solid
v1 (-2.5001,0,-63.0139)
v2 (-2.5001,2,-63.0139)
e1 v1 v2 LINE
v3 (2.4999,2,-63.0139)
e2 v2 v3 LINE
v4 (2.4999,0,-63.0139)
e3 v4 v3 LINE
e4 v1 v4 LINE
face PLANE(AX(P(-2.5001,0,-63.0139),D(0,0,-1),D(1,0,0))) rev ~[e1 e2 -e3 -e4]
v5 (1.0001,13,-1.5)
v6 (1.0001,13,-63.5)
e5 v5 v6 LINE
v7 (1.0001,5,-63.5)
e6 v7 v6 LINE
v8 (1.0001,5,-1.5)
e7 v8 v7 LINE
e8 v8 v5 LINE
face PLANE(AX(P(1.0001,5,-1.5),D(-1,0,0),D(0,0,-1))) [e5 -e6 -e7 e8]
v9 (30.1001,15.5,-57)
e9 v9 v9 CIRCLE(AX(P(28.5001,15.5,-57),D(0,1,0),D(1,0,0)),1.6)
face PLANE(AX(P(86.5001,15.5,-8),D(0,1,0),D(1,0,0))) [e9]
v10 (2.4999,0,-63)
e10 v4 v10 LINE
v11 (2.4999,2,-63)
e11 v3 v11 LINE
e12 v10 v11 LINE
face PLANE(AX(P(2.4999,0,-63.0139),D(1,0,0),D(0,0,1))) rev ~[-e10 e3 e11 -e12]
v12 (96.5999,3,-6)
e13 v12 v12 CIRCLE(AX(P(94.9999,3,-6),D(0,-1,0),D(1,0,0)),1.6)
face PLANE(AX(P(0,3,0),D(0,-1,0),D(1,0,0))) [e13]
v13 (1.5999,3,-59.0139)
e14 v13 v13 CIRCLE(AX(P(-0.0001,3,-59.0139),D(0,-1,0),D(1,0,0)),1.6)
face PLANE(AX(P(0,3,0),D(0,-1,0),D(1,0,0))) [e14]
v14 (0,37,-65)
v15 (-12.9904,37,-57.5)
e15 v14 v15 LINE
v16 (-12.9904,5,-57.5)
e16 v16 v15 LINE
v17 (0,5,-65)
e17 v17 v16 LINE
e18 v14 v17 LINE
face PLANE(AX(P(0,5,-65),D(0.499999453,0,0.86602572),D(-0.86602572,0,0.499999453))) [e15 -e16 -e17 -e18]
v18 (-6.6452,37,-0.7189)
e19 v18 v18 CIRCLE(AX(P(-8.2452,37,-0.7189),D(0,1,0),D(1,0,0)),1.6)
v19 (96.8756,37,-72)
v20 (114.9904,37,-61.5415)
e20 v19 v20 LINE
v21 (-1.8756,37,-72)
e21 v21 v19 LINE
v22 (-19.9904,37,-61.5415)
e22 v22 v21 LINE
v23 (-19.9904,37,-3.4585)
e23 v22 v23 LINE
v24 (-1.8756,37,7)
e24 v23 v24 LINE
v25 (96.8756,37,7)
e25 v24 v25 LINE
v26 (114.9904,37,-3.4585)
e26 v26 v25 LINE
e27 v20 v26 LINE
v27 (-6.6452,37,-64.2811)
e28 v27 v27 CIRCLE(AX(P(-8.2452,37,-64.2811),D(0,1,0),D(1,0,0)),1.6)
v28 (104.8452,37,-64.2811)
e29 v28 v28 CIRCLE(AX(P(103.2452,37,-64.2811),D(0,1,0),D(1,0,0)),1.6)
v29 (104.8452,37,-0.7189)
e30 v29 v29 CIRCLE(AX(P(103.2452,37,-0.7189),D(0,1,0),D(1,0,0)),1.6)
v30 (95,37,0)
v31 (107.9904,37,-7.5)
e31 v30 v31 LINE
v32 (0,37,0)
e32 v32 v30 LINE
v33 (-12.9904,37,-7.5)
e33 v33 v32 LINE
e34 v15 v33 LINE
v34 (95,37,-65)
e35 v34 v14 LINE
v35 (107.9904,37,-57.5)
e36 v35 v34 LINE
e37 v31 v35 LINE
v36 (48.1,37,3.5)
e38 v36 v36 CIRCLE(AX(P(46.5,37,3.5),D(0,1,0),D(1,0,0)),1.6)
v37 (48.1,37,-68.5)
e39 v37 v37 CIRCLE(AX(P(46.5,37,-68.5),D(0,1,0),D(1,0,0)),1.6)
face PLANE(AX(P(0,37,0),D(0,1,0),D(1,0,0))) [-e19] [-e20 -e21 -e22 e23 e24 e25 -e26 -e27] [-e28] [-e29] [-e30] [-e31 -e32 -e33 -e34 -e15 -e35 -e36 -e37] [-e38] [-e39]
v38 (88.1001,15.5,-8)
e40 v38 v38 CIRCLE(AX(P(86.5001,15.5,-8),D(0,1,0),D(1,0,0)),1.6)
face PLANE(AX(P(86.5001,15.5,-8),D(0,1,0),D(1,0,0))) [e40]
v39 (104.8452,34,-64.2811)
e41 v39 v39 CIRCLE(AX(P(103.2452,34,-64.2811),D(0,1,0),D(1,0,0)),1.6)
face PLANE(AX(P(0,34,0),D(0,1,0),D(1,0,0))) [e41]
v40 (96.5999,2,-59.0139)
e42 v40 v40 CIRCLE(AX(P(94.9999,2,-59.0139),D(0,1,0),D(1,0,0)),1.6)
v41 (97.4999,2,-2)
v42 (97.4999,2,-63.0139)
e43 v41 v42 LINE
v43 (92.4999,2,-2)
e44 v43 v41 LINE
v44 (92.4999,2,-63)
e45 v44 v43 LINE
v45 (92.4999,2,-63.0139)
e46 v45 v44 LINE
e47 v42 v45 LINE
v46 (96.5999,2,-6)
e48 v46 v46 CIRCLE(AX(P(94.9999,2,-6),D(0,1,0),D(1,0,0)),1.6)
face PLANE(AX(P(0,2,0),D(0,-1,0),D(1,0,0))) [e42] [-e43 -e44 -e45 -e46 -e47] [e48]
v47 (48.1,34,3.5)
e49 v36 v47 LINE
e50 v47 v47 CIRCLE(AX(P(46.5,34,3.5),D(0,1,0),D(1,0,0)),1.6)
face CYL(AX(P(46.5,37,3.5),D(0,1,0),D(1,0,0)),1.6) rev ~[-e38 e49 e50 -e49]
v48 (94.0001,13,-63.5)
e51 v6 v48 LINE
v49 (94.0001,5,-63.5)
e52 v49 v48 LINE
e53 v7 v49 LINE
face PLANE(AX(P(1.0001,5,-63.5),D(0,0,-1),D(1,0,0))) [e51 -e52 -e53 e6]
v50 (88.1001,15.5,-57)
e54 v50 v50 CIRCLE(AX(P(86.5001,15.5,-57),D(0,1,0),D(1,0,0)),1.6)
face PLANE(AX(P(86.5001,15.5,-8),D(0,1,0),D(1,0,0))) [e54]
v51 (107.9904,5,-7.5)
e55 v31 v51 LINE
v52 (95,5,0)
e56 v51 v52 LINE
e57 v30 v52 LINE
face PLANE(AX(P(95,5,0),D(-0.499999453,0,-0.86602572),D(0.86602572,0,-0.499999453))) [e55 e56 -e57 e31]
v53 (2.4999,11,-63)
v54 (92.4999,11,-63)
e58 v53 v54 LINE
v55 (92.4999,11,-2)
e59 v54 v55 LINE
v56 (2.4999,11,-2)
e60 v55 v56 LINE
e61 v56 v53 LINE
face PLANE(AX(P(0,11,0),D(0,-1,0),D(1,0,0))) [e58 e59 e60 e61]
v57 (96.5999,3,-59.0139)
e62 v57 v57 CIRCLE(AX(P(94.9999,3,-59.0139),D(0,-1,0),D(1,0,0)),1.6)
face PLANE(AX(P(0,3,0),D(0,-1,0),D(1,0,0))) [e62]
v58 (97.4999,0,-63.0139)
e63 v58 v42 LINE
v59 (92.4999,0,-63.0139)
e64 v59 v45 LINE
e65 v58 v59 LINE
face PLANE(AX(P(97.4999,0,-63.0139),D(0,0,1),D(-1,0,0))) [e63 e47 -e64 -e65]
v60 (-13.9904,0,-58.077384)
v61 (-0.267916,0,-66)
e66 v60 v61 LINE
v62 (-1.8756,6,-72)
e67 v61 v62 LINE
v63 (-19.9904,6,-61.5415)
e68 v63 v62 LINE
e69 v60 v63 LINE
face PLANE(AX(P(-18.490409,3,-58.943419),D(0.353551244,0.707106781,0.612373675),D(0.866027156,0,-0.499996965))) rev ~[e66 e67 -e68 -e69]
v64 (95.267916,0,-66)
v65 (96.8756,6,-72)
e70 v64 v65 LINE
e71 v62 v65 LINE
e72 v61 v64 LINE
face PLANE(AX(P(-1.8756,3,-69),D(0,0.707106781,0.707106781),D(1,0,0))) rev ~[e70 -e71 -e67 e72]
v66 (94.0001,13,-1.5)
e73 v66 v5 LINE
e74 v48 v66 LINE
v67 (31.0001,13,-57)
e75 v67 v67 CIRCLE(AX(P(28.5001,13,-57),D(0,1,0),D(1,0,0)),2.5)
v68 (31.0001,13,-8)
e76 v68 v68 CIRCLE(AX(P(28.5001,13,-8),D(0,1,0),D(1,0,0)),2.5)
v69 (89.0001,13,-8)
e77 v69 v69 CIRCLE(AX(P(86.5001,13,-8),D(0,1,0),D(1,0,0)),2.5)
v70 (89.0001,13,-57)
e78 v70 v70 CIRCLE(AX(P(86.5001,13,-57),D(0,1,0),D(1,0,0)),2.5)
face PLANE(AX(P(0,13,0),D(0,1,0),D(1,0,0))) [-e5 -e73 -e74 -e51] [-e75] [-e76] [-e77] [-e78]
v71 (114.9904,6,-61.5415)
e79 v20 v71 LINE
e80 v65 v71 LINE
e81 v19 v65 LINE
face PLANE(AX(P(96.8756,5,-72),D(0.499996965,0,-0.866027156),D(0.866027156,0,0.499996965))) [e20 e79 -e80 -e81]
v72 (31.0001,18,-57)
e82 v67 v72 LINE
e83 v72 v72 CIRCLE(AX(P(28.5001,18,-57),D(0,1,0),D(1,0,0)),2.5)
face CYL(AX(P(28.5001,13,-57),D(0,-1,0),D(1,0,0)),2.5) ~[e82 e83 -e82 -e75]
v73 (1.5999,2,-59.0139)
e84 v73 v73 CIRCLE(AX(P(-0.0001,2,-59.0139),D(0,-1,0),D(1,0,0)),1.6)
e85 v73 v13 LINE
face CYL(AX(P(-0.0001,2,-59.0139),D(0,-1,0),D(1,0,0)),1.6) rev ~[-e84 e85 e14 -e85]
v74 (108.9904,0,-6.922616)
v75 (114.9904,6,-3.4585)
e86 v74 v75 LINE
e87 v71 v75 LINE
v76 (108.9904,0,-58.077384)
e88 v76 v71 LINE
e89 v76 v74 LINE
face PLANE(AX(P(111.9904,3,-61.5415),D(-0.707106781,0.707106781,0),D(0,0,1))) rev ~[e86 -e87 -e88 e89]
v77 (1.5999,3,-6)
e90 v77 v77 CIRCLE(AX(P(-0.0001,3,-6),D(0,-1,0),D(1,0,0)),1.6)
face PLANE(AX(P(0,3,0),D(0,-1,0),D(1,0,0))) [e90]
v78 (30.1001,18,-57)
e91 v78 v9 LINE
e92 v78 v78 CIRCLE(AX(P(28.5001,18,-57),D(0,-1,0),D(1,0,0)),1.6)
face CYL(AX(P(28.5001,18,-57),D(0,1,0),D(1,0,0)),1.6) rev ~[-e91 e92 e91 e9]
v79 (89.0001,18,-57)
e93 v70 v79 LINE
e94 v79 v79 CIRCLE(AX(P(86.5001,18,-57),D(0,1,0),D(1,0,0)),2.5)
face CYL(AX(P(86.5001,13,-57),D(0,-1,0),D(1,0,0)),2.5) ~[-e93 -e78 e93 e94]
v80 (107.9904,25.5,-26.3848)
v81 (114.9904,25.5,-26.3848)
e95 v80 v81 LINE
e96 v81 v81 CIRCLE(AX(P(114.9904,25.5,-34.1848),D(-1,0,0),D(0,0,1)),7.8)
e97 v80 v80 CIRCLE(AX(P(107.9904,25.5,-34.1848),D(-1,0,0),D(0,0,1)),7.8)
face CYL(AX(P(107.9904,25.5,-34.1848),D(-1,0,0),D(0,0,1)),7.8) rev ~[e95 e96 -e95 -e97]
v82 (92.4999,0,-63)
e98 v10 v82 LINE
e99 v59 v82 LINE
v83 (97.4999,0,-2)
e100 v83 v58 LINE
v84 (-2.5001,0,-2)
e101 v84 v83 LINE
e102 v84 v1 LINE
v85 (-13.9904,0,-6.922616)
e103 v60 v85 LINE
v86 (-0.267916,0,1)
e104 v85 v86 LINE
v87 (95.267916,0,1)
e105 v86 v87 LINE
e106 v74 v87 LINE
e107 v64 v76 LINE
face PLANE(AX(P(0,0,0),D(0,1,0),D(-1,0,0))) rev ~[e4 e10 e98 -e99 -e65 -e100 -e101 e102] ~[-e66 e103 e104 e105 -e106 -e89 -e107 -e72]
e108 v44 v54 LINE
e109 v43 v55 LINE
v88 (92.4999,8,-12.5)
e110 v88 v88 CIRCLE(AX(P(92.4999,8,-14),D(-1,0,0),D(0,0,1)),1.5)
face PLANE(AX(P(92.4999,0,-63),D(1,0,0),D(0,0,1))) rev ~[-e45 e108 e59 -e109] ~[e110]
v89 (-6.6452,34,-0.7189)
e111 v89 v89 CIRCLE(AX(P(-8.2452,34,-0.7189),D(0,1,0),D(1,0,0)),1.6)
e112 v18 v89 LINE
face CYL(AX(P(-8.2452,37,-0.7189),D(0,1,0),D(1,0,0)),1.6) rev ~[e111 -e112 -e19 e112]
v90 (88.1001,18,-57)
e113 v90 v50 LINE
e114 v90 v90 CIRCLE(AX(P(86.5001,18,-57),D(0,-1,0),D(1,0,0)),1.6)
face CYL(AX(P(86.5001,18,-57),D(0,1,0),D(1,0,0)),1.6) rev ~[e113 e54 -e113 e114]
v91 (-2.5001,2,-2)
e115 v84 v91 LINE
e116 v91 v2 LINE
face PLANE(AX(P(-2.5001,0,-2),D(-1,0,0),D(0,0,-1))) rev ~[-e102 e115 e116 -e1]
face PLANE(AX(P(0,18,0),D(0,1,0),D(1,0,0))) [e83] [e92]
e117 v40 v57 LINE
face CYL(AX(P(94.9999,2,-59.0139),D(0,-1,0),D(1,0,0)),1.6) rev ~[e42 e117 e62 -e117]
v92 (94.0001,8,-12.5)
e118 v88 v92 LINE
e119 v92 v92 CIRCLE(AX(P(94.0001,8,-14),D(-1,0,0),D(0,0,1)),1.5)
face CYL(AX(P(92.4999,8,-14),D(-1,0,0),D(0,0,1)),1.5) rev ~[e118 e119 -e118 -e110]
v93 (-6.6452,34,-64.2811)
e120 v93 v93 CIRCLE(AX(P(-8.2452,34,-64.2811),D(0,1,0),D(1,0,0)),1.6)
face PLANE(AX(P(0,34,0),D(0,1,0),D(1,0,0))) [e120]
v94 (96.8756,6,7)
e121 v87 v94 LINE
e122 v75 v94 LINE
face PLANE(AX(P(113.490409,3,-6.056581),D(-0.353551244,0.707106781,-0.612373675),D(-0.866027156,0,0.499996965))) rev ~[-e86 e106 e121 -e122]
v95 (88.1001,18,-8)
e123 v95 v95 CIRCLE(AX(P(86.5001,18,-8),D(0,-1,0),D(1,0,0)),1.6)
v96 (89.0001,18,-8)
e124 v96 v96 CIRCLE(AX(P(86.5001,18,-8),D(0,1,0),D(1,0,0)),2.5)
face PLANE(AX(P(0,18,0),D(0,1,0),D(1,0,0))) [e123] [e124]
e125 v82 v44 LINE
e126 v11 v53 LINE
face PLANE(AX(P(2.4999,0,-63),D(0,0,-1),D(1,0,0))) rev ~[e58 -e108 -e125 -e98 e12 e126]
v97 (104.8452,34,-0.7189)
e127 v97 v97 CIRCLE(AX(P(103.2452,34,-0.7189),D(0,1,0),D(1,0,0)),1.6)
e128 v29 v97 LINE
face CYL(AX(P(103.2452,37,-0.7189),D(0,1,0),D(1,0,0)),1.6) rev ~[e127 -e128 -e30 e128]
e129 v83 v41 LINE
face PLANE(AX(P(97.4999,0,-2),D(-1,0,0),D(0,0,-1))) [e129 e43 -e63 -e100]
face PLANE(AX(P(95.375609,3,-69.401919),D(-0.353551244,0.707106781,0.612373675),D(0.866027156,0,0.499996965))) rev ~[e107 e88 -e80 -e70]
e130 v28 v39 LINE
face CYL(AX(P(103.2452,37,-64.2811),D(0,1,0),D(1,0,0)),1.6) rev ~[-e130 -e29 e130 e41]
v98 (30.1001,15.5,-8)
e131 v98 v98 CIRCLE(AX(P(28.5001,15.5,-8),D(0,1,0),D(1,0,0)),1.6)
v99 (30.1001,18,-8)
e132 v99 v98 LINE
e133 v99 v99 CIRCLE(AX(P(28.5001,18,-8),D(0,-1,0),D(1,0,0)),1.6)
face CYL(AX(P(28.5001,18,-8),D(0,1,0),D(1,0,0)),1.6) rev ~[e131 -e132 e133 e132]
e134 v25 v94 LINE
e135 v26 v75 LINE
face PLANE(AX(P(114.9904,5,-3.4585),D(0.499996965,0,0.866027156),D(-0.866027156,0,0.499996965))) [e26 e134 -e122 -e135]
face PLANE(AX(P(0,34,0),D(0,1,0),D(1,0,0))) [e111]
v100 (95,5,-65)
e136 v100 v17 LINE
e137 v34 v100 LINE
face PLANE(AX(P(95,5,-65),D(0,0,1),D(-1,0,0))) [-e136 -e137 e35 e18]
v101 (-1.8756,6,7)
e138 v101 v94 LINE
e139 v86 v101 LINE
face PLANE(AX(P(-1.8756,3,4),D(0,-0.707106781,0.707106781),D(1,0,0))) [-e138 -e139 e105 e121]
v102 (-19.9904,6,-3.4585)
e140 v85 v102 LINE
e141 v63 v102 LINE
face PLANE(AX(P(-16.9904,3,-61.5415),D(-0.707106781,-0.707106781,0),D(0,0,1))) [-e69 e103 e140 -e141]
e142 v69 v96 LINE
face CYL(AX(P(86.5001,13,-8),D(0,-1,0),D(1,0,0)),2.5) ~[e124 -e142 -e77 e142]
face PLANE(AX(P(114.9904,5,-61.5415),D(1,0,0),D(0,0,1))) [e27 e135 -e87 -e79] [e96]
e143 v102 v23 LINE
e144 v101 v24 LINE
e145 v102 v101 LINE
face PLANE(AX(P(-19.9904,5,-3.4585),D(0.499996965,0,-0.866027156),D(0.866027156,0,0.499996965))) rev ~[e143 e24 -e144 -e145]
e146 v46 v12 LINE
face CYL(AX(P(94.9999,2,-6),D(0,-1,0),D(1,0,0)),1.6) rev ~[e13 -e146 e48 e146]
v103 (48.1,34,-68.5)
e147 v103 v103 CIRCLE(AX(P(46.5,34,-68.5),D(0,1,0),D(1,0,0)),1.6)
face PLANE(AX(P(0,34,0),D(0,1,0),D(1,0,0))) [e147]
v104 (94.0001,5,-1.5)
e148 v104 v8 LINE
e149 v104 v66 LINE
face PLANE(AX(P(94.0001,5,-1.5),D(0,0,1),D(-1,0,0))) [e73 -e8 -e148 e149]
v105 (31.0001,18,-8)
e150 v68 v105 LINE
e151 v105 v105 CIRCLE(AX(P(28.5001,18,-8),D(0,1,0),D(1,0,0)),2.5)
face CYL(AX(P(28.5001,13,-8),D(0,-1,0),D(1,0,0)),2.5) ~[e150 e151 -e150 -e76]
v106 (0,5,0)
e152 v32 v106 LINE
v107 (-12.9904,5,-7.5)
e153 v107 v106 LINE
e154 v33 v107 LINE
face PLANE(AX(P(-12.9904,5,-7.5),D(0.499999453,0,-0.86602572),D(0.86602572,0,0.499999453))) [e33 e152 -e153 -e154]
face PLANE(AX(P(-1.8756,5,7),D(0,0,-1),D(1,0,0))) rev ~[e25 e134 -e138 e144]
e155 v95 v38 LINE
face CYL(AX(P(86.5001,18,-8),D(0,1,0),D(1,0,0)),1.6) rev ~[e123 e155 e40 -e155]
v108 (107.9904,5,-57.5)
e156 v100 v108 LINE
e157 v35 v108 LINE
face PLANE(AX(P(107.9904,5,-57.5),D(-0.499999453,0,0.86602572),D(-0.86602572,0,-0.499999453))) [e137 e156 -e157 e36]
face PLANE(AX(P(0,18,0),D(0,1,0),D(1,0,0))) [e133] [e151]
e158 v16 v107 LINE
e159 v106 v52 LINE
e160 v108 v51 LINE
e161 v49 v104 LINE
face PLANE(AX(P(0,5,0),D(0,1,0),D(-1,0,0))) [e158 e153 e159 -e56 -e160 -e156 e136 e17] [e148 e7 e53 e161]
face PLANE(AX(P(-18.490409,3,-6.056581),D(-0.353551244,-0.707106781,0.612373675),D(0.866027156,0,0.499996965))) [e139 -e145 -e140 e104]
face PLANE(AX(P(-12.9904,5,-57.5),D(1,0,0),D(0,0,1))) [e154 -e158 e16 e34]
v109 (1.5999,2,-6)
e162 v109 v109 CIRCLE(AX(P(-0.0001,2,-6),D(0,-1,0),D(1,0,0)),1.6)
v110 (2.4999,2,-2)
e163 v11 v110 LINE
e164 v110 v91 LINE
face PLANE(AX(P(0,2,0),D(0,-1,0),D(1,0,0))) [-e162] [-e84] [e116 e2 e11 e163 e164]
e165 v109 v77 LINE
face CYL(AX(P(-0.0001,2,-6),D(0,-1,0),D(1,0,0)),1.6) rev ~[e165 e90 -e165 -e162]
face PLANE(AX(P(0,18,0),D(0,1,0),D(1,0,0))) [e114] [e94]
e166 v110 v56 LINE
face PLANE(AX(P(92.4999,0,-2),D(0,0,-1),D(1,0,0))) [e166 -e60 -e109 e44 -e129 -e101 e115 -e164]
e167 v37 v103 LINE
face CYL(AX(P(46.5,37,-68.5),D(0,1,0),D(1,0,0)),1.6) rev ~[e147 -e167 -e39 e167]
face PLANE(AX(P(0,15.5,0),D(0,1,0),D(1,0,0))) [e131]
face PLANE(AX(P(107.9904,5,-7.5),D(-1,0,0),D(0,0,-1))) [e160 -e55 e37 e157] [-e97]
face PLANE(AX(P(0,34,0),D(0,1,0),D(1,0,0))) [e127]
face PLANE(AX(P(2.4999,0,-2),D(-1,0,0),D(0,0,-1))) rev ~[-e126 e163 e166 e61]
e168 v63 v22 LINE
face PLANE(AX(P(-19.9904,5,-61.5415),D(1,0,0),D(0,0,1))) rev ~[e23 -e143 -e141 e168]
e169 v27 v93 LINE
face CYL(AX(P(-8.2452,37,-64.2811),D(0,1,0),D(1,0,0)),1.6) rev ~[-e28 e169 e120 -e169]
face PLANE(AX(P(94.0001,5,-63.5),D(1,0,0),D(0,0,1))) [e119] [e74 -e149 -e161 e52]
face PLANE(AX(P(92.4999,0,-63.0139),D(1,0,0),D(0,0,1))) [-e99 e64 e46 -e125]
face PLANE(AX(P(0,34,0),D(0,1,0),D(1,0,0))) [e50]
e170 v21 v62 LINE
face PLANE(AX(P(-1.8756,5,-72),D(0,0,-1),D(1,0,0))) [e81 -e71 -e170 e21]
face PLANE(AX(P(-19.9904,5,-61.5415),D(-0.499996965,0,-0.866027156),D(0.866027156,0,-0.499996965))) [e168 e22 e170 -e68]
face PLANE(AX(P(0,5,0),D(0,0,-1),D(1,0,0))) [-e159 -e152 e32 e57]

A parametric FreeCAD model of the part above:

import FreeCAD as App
import Part
import Sketcher

V = App.Vector
Q = App.Units.Quantity


def edges_at(feature, points):
    """Names of the edges that pass closest to the given points."""
    edges = feature.Shape.Edges
    near = lambda p: min(range(len(edges)), key=lambda i: edges[i].distToShape(Part.Vertex(*p))[0])
    return sorted({f"Edge{near(p) + 1}" for p in points})

doc = App.newDocument("Part")
body = doc.addObject("PartDesign::Body", "Body")

# Sketch on XZ plane
sketch1 = body.newObject("Sketcher::SketchObject", "Sketch")
sketch1.AttachmentSupport = (doc.getObject("XZ_Plane"), [""])
sketch1.MapMode = "FlatFace"
sketch1.addGeometry(Part.LineSegment(V(95, -65, 0), V(0, -65, 0)), False)
sketch1.addGeometry(Part.LineSegment(V(0, -65, 0), V(-13, -58, 0)), False)
sketch1.addGeometry(Part.LineSegment(V(-13, -58, 0), V(-13, -8, 0)), False)
sketch1.addGeometry(Part.LineSegment(V(-13, -8, 0), V(0, 0, 0)), False)
sketch1.addGeometry(Part.LineSegment(V(0, 0, 0), V(95, 0, 0)), False)
sketch1.addGeometry(Part.LineSegment(V(95, 0, 0), V(108, -8, 0)), False)
sketch1.addGeometry(Part.LineSegment(V(108, -8, 0), V(108, -58, 0)), False)
sketch1.addGeometry(Part.LineSegment(V(108, -58, 0), V(95, -65, 0)), False)
sketch1.addConstraint(Sketcher.Constraint("Coincident", 0, 2, 1, 1))
sketch1.addConstraint(Sketcher.Constraint("Coincident", 1, 2, 2, 1))
sketch1.addConstraint(Sketcher.Constraint("Coincident", 2, 2, 3, 1))
sketch1.addConstraint(Sketcher.Constraint("Coincident", 3, 2, 4, 1))
sketch1.addConstraint(Sketcher.Constraint("Coincident", 4, 2, 5, 1))
sketch1.addConstraint(Sketcher.Constraint("Coincident", 5, 2, 6, 1))
sketch1.addConstraint(Sketcher.Constraint("Coincident", 6, 2, 7, 1))
sketch1.addConstraint(Sketcher.Constraint("Coincident", 7, 2, 0, 1))
sketch1.addConstraint(Sketcher.Constraint("Horizontal", 0))
sketch1.addConstraint(Sketcher.Constraint("Vertical", 2))
sketch1.addConstraint(Sketcher.Constraint("Horizontal", 4))
sketch1.addConstraint(Sketcher.Constraint("Vertical", 6))
sketch1.addConstraint(Sketcher.Constraint("Coincident", 3, 2, -1, 1))
sketch1.addConstraint(Sketcher.Constraint("PointOnObject", 0, 2, -2))
sketch1.addConstraint(Sketcher.Constraint("Parallel", 1, 5))
sketch1.addConstraint(Sketcher.Constraint("Parallel", 3, 7))
sketch1.addConstraint(Sketcher.Constraint("Horizontal", 2, 2, 5, 2))
sketch1.addConstraint(Sketcher.Constraint("Horizontal", 1, 2, 6, 2))
sketch1.addConstraint(Sketcher.Constraint("Vertical", 4, 2, 7, 2))
sketch1.addConstraint(Sketcher.Constraint("DistanceX", 0, 2, 0, 1, Q("95 mm")))
sketch1.addConstraint(Sketcher.Constraint("Distance", 1, Q("15 mm")))
sketch1.addConstraint(Sketcher.Constraint("DistanceY", 0, 2, -1, 1, Q("65 mm")))
sketch1.addConstraint(Sketcher.Constraint("DistanceY", 2, 1, 2, 2, Q("50 mm")))
pad1 = body.newObject("PartDesign::Pad", "Pad")
pad1.Profile = sketch1
pad1.Length = 5
pad1.Reversed = True

# Sketch on XZ plane
sketch2 = body.newObject("Sketcher::SketchObject", "Sketch001")
sketch2.AttachmentSupport = (doc.getObject("XZ_Plane"), [""])
sketch2.MapMode = "FlatFace"
sketch2.AttachmentOffset = App.Placement(V(0, 0, -5), App.Rotation())
sketch2.addGeometry(Part.LineSegment(V(94, -64, 0), V(1, -64, 0)), False)
sketch2.addGeometry(Part.LineSegment(V(1, -64, 0), V(1, -2, 0)), False)
sketch2.addGeometry(Part.LineSegment(V(1, -2, 0), V(94, -2, 0)), False)
sketch2.addGeometry(Part.LineSegment(V(94, -2, 0), V(94, -64, 0)), False)
sketch2.addConstraint(Sketcher.Constraint("Coincident", 0, 2, 1, 1))
sketch2.addConstraint(Sketcher.Constraint("Coincident", 1, 2, 2, 1))
sketch2.addConstraint(Sketcher.Constraint("Coincident", 2, 2, 3, 1))
sketch2.addConstraint(Sketcher.Constraint("Coincident", 3, 2, 0, 1))
sketch2.addConstraint(Sketcher.Constraint("Horizontal", 0))
sketch2.addConstraint(Sketcher.Constraint("Vertical", 1))
sketch2.addConstraint(Sketcher.Constraint("Horizontal", 2))
sketch2.addConstraint(Sketcher.Constraint("Vertical", 3))
sketch2.addConstraint(Sketcher.Constraint("DistanceX", 0, 2, 0, 1, Q("93 mm")))
sketch2.addConstraint(Sketcher.Constraint("DistanceY", 1, 1, 1, 2, Q("62 mm")))
sketch2.addConstraint(Sketcher.Constraint("DistanceY", 1, 2, -1, 1, Q("1.5 mm")))
sketch2.addConstraint(Sketcher.Constraint("DistanceX", -1, 1, 0, 2, Q("1 mm")))
pad2 = body.newObject("PartDesign::Pad", "Pad001")
pad2.Profile = sketch2
pad2.Length = 8
pad2.Reversed = True

# Sketch on XZ plane
sketch3 = body.newObject("Sketcher::SketchObject", "Sketch002")
sketch3.AttachmentSupport = (doc.getObject("XZ_Plane"), [""])
sketch3.MapMode = "FlatFace"
sketch3.AttachmentOffset = App.Placement(V(0, 0, -5), App.Rotation())
sketch3.addGeometry(Part.LineSegment(V(-2, -72, 0), V(-20, -62, 0)), False)
sketch3.addGeometry(Part.LineSegment(V(-20, -62, 0), V(-20, -3, 0)), False)
sketch3.addGeometry(Part.LineSegment(V(-20, -3, 0), V(-2, 7, 0)), False)
sketch3.addGeometry(Part.LineSegment(V(-2, 7, 0), V(97, 7, 0)), False)
sketch3.addGeometry(Part.LineSegment(V(97, 7, 0), V(115, -3, 0)), False)
sketch3.addGeometry(Part.LineSegment(V(115, -3, 0), V(115, -62, 0)), False)
sketch3.addGeometry(Part.LineSegment(V(115, -62, 0), V(97, -72, 0)), False)
sketch3.addGeometry(Part.LineSegment(V(97, -72, 0), V(-2, -72, 0)), False)
sketch3.addGeometry(Part.LineSegment(V(-13, -8, 0), V(-13, -58, 0)), False)
sketch3.addGeometry(Part.LineSegment(V(-13, -58, 0), V(0, -65, 0)), False)
sketch3.addGeometry(Part.LineSegment(V(0, -65, 0), V(95, -65, 0)), False)
sketch3.addGeometry(Part.LineSegment(V(95, -65, 0), V(108, -58, 0)), False)
sketch3.addGeometry(Part.LineSegment(V(108, -58, 0), V(108, -8, 0)), False)
sketch3.addGeometry(Part.LineSegment(V(108, -8, 0), V(95, 0, 0)), False)
sketch3.addGeometry(Part.LineSegment(V(95, 0, 0), V(0, 0, 0)), False)
sketch3.addGeometry(Part.LineSegment(V(0, 0, 0), V(-13, -8, 0)), False)
sketch3.addConstraint(Sketcher.Constraint("Coincident", 0, 2, 1, 1))
sketch3.addConstraint(Sketcher.Constraint("Coincident", 1, 2, 2, 1))
sketch3.addConstraint(Sketcher.Constraint("Coincident", 2, 2, 3, 1))
sketch3.addConstraint(Sketcher.Constraint("Coincident", 3, 2, 4, 1))
sketch3.addConstraint(Sketcher.Constraint("Coincident", 4, 2, 5, 1))
sketch3.addConstraint(Sketcher.Constraint("Coincident", 5, 2, 6, 1))
sketch3.addConstraint(Sketcher.Constraint("Coincident", 6, 2, 7, 1))
sketch3.addConstraint(Sketcher.Constraint("Coincident", 7, 2, 0, 1))
sketch3.addConstraint(Sketcher.Constraint("Coincident", 8, 2, 9, 1))
sketch3.addConstraint(Sketcher.Constraint("Coincident", 9, 2, 10, 1))
sketch3.addConstraint(Sketcher.Constraint("Coincident", 10, 2, 11, 1))
sketch3.addConstraint(Sketcher.Constraint("Coincident", 11, 2, 12, 1))
sketch3.addConstraint(Sketcher.Constraint("Coincident", 12, 2, 13, 1))
sketch3.addConstraint(Sketcher.Constraint("Coincident", 13, 2, 14, 1))
sketch3.addConstraint(Sketcher.Constraint("Coincident", 14, 2, 15, 1))
sketch3.addConstraint(Sketcher.Constraint("Coincident", 15, 2, 8, 1))
sketch3.addConstraint(Sketcher.Constraint("Vertical", 1))
sketch3.addConstraint(Sketcher.Constraint("Horizontal", 3))
sketch3.addConstraint(Sketcher.Constraint("Vertical", 5))
sketch3.addConstraint(Sketcher.Constraint("Horizontal", 7))
sketch3.addConstraint(Sketcher.Constraint("Vertical", 8))
sketch3.addConstraint(Sketcher.Constraint("Horizontal", 10))
sketch3.addConstraint(Sketcher.Constraint("Vertical", 12))
sketch3.addConstraint(Sketcher.Constraint("Horizontal", 14))
sketch3.addConstraint(Sketcher.Constraint("Coincident", 14, 2, -1, 1))
sketch3.addConstraint(Sketcher.Constraint("PointOnObject", 9, 2, -2))
sketch3.addConstraint(Sketcher.Constraint("Parallel", 0, 4))
sketch3.addConstraint(Sketcher.Constraint("Parallel", 2, 6))
sketch3.addConstraint(Sketcher.Constraint("Parallel", 4, 9))
sketch3.addConstraint(Sketcher.Constraint("Parallel", 6, 11))
sketch3.addConstraint(Sketcher.Constraint("Parallel", 9, 13))
sketch3.addConstraint(Sketcher.Constraint("Parallel", 11, 15))
sketch3.addConstraint(Sketcher.Constraint("Horizontal", 1, 2, 4, 2))
sketch3.addConstraint(Sketcher.Constraint("Horizontal", 0, 2, 5, 2))
sketch3.addConstraint(Sketcher.Constraint("Horizontal", 8, 2, 11, 2))
sketch3.addConstraint(Sketcher.Constraint("Horizontal", 12, 2, 15, 2))
sketch3.addConstraint(Sketcher.Constraint("Vertical", 3, 2, 6, 2))
sketch3.addConstraint(Sketcher.Constraint("Vertical", 2, 2, 7, 2))
sketch3.addConstraint(Sketcher.Constraint("DistanceY", -1, 1, 2, 2, Q("7 mm")))
sketch3.addConstraint(Sketcher.Constraint("DistanceX", 0, 2, 8, 2, Q("7 mm")))
sketch3.addConstraint(Sketcher.Constraint("DistanceY", 7, 2, 9, 2, Q("7 mm")))
sketch3.addConstraint(Sketcher.Constraint("DistanceX", 11, 2, 5, 2, Q("7 mm")))
sketch3.addConstraint(Sketcher.Constraint("DistanceX", 10, 1, 10, 2, Q("95 mm")))
sketch3.addConstraint(Sketcher.Constraint("DistanceY", 8, 2, 8, 1, Q("50 mm")))
sketch3.addConstraint(Sketcher.Constraint("Angle", 0, Q("150.0002 deg")))
sketch3.addConstraint(Sketcher.Constraint("Distance", 9, Q("15 mm")))
sketch3.addConstraint(Sketcher.Constraint("DistanceY", 1, 1, 1, 2, Q("58.083 mm")))
pad3 = body.newObject("PartDesign::Pad", "Pad002")
pad3.Profile = sketch3
pad3.Type = "TwoLengths"
pad3.Length = 32
pad3.Length2 = 5
pad3.Reversed = True

# Sketch on XZ plane
sketch4 = body.newObject("Sketcher::SketchObject", "Sketch003")
sketch4.AttachmentSupport = (doc.getObject("XZ_Plane"), [""])
sketch4.MapMode = "FlatFace"
sketch4.addGeometry(Part.LineSegment(V(2, -2, 0), V(2, -63, 0)), False)
sketch4.addGeometry(Part.LineSegment(V(2, -63, 0), V(92, -63, 0)), False)
sketch4.addGeometry(Part.LineSegment(V(92, -63, 0), V(92, -2, 0)), False)
sketch4.addGeometry(Part.LineSegment(V(92, -2, 0), V(2, -2, 0)), False)
sketch4.addConstraint(Sketcher.Constraint("Coincident", 0, 2, 1, 1))
sketch4.addConstraint(Sketcher.Constraint("Coincident", 1, 2, 2, 1))
sketch4.addConstraint(Sketcher.Constraint("Coincident", 2, 2, 3, 1))
sketch4.addConstraint(Sketcher.Constraint("Coincident", 3, 2, 0, 1))
sketch4.addConstraint(Sketcher.Constraint("Vertical", 0))
sketch4.addConstraint(Sketcher.Constraint("Horizontal", 1))
sketch4.addConstraint(Sketcher.Constraint("Vertical", 2))
sketch4.addConstraint(Sketcher.Constraint("Horizontal", 3))
sketch4.addConstraint(Sketcher.Constraint("DistanceX", 1, 1, 1, 2, Q("90 mm")))
sketch4.addConstraint(Sketcher.Constraint("DistanceY", 0, 2, 0, 1, Q("61 mm")))
sketch4.addConstraint(Sketcher.Constraint("DistanceY", 0, 2, -1, 1, Q("63 mm")))
sketch4.addConstraint(Sketcher.Constraint("DistanceX", -1, 1, 0, 2, Q("2.5 mm")))
pocket1 = body.newObject("PartDesign::Pocket", "Pocket")
pocket1.Profile = sketch4
pocket1.Length = 11
doc.recompute()

chamfer = body.newObject("PartDesign::Chamfer", "Chamfer")
chamfer.Base = (pocket1, edges_at(pocket1, [
    (47.5, 0, -72),
    (105.933, 0, -66.771),
    (114.99, 0, -32.5),
    (105.933, 0, 1.771),
    (47.5, 0, 7),
    (-10.933, 0, 1.771),
    (-19.99, 0, -32.5),
    (-10.933, 0, -66.771),
]))
chamfer.Size = 6

# Sketch on XZ plane
sketch5 = body.newObject("Sketcher::SketchObject", "Sketch004")
sketch5.AttachmentSupport = (doc.getObject("XZ_Plane"), [""])
sketch5.MapMode = "FlatFace"
sketch5.addGeometry(Part.LineSegment(V(2, -63, 0), V(2, -2, 0)), False)
sketch5.addGeometry(Part.LineSegment(V(2, -2, 0), V(-3, -2, 0)), False)
sketch5.addGeometry(Part.LineSegment(V(-3, -2, 0), V(-3, -63, 0)), False)
sketch5.addGeometry(Part.LineSegment(V(-3, -63, 0), V(2, -63, 0)), False)
sketch5.addGeometry(Part.LineSegment(V(97, -2, 0), V(92, -2, 0)), False)
sketch5.addGeometry(Part.LineSegment(V(92, -2, 0), V(92, -63, 0)), False)
sketch5.addGeometry(Part.LineSegment(V(92, -63, 0), V(97, -63, 0)), False)
sketch5.addGeometry(Part.LineSegment(V(97, -63, 0), V(97, -2, 0)), False)
sketch5.addConstraint(Sketcher.Constraint("Coincident", 0, 2, 1, 1))
sketch5.addConstraint(Sketcher.Constraint("Coincident", 1, 2, 2, 1))
sketch5.addConstraint(Sketcher.Constraint("Coincident", 2, 2, 3, 1))
sketch5.addConstraint(Sketcher.Constraint("Coincident", 3, 2, 0, 1))
sketch5.addConstraint(Sketcher.Constraint("Coincident", 4, 2, 5, 1))
sketch5.addConstraint(Sketcher.Constraint("Coincident", 5, 2, 6, 1))
sketch5.addConstraint(Sketcher.Constraint("Coincident", 6, 2, 7, 1))
sketch5.addConstraint(Sketcher.Constraint("Coincident", 7, 2, 4, 1))
sketch5.addConstraint(Sketcher.Constraint("Vertical", 0))
sketch5.addConstraint(Sketcher.Constraint("Horizontal", 1))
sketch5.addConstraint(Sketcher.Constraint("Vertical", 2))
sketch5.addConstraint(Sketcher.Constraint("Horizontal", 3))
sketch5.addConstraint(Sketcher.Constraint("Horizontal", 4))
sketch5.addConstraint(Sketcher.Constraint("Vertical", 5))
sketch5.addConstraint(Sketcher.Constraint("Horizontal", 6))
sketch5.addConstraint(Sketcher.Constraint("Vertical", 7))
sketch5.addConstraint(Sketcher.Constraint("Horizontal", 1, 2, 4, 2))
sketch5.addConstraint(Sketcher.Constraint("Horizontal", 3, 2, 5, 2))
sketch5.addConstraint(Sketcher.Constraint("Equal", 3, 4))
sketch5.addConstraint(Sketcher.Constraint("DistanceX", 1, 2, 1, 1, Q("5 mm")))
sketch5.addConstraint(Sketcher.Constraint("DistanceY", 0, 2, -1, 1, Q("2 mm")))
sketch5.addConstraint(Sketcher.Constraint("DistanceX", 0, 2, 4, 2, Q("90 mm")))
sketch5.addConstraint(Sketcher.Constraint("DistanceX", -1, 1, 0, 2, Q("2.5 mm")))
sketch5.addConstraint(Sketcher.Constraint("DistanceY", 0, 1, 0, 2, Q("61.014 mm")))
pocket2 = body.newObject("PartDesign::Pocket", "Pocket001")
pocket2.Profile = sketch5
pocket2.Length = 2

# Sketch on XZ plane
sketch6 = body.newObject("Sketcher::SketchObject", "Sketch005")
sketch6.AttachmentSupport = (doc.getObject("XZ_Plane"), [""])
sketch6.MapMode = "FlatFace"
sketch6.AttachmentOffset = App.Placement(V(0, 0, -2), App.Rotation())
sketch6.addGeometry(Part.Circle(V(0, -6, 0), V(0, 0, 1), 1.6), False)
sketch6.addGeometry(Part.Circle(V(95, -6, 0), V(0, 0, 1), 1.6), False)
sketch6.addGeometry(Part.Circle(V(95, -59, 0), V(0, 0, 1), 1.6), False)
sketch6.addGeometry(Part.Circle(V(0, -59, 0), V(0, 0, 1), 1.6), False)
sketch6.addConstraint(Sketcher.Constraint("Equal", 0, 1))
sketch6.addConstraint(Sketcher.Constraint("Equal", 1, 2))
sketch6.addConstraint(Sketcher.Constraint("Equal", 2, 3))
sketch6.addConstraint(Sketcher.Constraint("PointOnObject", 0, 3, -2))
sketch6.addConstraint(Sketcher.Constraint("PointOnObject", 3, 3, -2))
sketch6.addConstraint(Sketcher.Constraint("Horizontal", 0, 3, 1, 3))
sketch6.addConstraint(Sketcher.Constraint("Horizontal", 2, 3, 3, 3))
sketch6.addConstraint(Sketcher.Constraint("Vertical", 1, 3, 2, 3))
sketch6.addConstraint(Sketcher.Constraint("Diameter", 0, Q("3.2 mm")))
sketch6.addConstraint(Sketcher.Constraint("DistanceY", 0, 3, -1, 1, Q("6 mm")))
sketch6.addConstraint(Sketcher.Constraint("DistanceX", -1, 1, 1, 3, Q("95 mm")))
sketch6.addConstraint(Sketcher.Constraint("DistanceY", 2, 3, -1, 1, Q("59.014 mm")))
pocket3 = body.newObject("PartDesign::Pocket", "Pocket002")
pocket3.Profile = sketch6
pocket3.Length = 1

# Sketch on XZ plane
sketch7 = body.newObject("Sketcher::SketchObject", "Sketch006")
sketch7.AttachmentSupport = (doc.getObject("XZ_Plane"), [""])
sketch7.MapMode = "FlatFace"
sketch7.AttachmentOffset = App.Placement(V(0, 0, -13), App.Rotation())
sketch7.addGeometry(Part.Circle(V(28.5, -57, 0), V(0, 0, 1), 2.5), False)
sketch7.addGeometry(Part.Circle(V(28.5, -8, 0), V(0, 0, 1), 2.5), False)
sketch7.addGeometry(Part.Circle(V(86.5, -57, 0), V(0, 0, 1), 2.5), False)
sketch7.addGeometry(Part.Circle(V(86.5, -8, 0), V(0, 0, 1), 2.5), False)
sketch7.addConstraint(Sketcher.Constraint("Equal", 0, 1))
sketch7.addConstraint(Sketcher.Constraint("Equal", 1, 2))
sketch7.addConstraint(Sketcher.Constraint("Equal", 2, 3))
sketch7.addConstraint(Sketcher.Constraint("Horizontal", 0, 3, 2, 3))
sketch7.addConstraint(Sketcher.Constraint("Horizontal", 1, 3, 3, 3))
sketch7.addConstraint(Sketcher.Constraint("Vertical", 0, 3, 1, 3))
sketch7.addConstraint(Sketcher.Constraint("Vertical", 2, 3, 3, 3))
sketch7.addConstraint(Sketcher.Constraint("Diameter", 0, Q("5 mm")))
sketch7.addConstraint(Sketcher.Constraint("DistanceX", 0, 3, 2, 3, Q("58 mm")))
sketch7.addConstraint(Sketcher.Constraint("DistanceY", 0, 3, -1, 1, Q("57 mm")))
sketch7.addConstraint(Sketcher.Constraint("DistanceY", 1, 3, -1, 1, Q("8 mm")))
sketch7.addConstraint(Sketcher.Constraint("DistanceX", -1, 1, 0, 3, Q("28.5 mm")))
pad4 = body.newObject("PartDesign::Pad", "Pad003")
pad4.Profile = sketch7
pad4.Length = 5
pad4.Reversed = True

# Sketch on YZ plane
sketch8 = body.newObject("Sketcher::SketchObject", "Sketch007")
sketch8.AttachmentSupport = (doc.getObject("YZ_Plane"), [""])
sketch8.MapMode = "FlatFace"
sketch8.AttachmentOffset = App.Placement(V(0, 0, 92.4999), App.Rotation())
sketch8.addGeometry(Part.Circle(V(8, -14, 0), V(0, 0, 1), 1.5), False)
sketch8.addConstraint(Sketcher.Constraint("Diameter", 0, Q("3 mm")))
sketch8.addConstraint(Sketcher.Constraint("DistanceX", -1, 1, 0, 3, Q("8 mm")))
sketch8.addConstraint(Sketcher.Constraint("DistanceY", 0, 3, -1, 1, Q("14 mm")))
pocket4 = body.newObject("PartDesign::Pocket", "Pocket003")
pocket4.Profile = sketch8
pocket4.Length = 5
pocket4.Reversed = True

# Sketch on XZ plane
sketch9 = body.newObject("Sketcher::SketchObject", "Sketch008")
sketch9.AttachmentSupport = (doc.getObject("XZ_Plane"), [""])
sketch9.MapMode = "FlatFace"
sketch9.AttachmentOffset = App.Placement(V(0, 0, -37), App.Rotation())
sketch9.addGeometry(Part.Circle(V(103.2, -0.7, 0), V(0, 0, 1), 1.6), False)
sketch9.addGeometry(Part.Circle(V(103.2, -64.3, 0), V(0, 0, 1), 1.6), False)
sketch9.addGeometry(Part.Circle(V(-8.2, -64.3, 0), V(0, 0, 1), 1.6), False)
sketch9.addGeometry(Part.Circle(V(-8.2, -0.7, 0), V(0, 0, 1), 1.6), False)
sketch9.addGeometry(Part.Circle(V(46.5, 3.5, 0), V(0, 0, 1), 1.6), False)
sketch9.addGeometry(Part.Circle(V(46.5, -68.5, 0), V(0, 0, 1), 1.6), False)
sketch9.addConstraint(Sketcher.Constraint("Equal", 0, 1))
sketch9.addConstraint(Sketcher.Constraint("Equal", 1, 2))
sketch9.addConstraint(Sketcher.Constraint("Equal", 2, 3))
sketch9.addConstraint(Sketcher.Constraint("Equal", 3, 4))
sketch9.addConstraint(Sketcher.Constraint("Equal", 4, 5))
sketch9.addConstraint(Sketcher.Constraint("Horizontal", 1, 3, 2, 3))
sketch9.addConstraint(Sketcher.Constraint("Horizontal", 0, 3, 3, 3))
sketch9.addConstraint(Sketcher.Constraint("Vertical", 0, 3, 1, 3))
sketch9.addConstraint(Sketcher.Constraint("Vertical", 2, 3, 3, 3))
sketch9.addConstraint(Sketcher.Constraint("Vertical", 4, 3, 5, 3))
sketch9.addConstraint(Sketcher.Constraint("Diameter", 0, Q("3.2 mm")))
sketch9.addConstraint(Sketcher.Constraint("DistanceX", -1, 1, 4, 3, Q("46.5 mm")))
sketch9.addConstraint(Sketcher.Constraint("DistanceY", -1, 1, 4, 3, Q("3.5 mm")))
sketch9.addConstraint(Sketcher.Constraint("DistanceY", 5, 3, 4, 3, Q("72 mm")))
sketch9.addConstraint(Sketcher.Constraint("DistanceY", 0, 3, -1, 1, Q("0.719 mm")))
sketch9.addConstraint(Sketcher.Constraint("DistanceY", 1, 3, -1, 1, Q("64.281 mm")))
sketch9.addConstraint(Sketcher.Constraint("DistanceX", -1, 1, 0, 3, Q("103.2452 mm")))
sketch9.addConstraint(Sketcher.Constraint("DistanceX", 2, 3, -1, 1, Q("8.2452 mm")))
pocket5 = body.newObject("PartDesign::Pocket", "Pocket004")
pocket5.Profile = sketch9
pocket5.Length = 3
pocket5.Reversed = True

# Sketch on XZ plane
sketch10 = body.newObject("Sketcher::SketchObject", "Sketch009")
sketch10.AttachmentSupport = (doc.getObject("XZ_Plane"), [""])
sketch10.MapMode = "FlatFace"
sketch10.AttachmentOffset = App.Placement(V(0, 0, -18), App.Rotation())
sketch10.addGeometry(Part.Circle(V(28.5, -8, 0), V(0, 0, 1), 1.6), False)
sketch10.addConstraint(Sketcher.Constraint("Diameter", 0, Q("3.2 mm")))
sketch10.addConstraint(Sketcher.Constraint("DistanceY", 0, 3, -1, 1, Q("8 mm")))
sketch10.addConstraint(Sketcher.Constraint("DistanceX", -1, 1, 0, 3, Q("28.5 mm")))
pocket6 = body.newObject("PartDesign::Pocket", "Pocket005")
pocket6.Profile = sketch10
pocket6.Length = 2.5
pocket6.Reversed = True

# Sketch on XZ plane
sketch11 = body.newObject("Sketcher::SketchObject", "Sketch010")
sketch11.AttachmentSupport = (doc.getObject("XZ_Plane"), [""])
sketch11.MapMode = "FlatFace"
sketch11.AttachmentOffset = App.Placement(V(0, 0, -18), App.Rotation())
sketch11.addGeometry(Part.Circle(V(86.5, -8, 0), V(0, 0, 1), 1.6), False)
sketch11.addGeometry(Part.Circle(V(86.5, -57, 0), V(0, 0, 1), 1.6), False)
sketch11.addGeometry(Part.Circle(V(28.5, -57, 0), V(0, 0, 1), 1.6), False)
sketch11.addConstraint(Sketcher.Constraint("Equal", 0, 1))
sketch11.addConstraint(Sketcher.Constraint("Equal", 1, 2))
sketch11.addConstraint(Sketcher.Constraint("Horizontal", 1, 3, 2, 3))
sketch11.addConstraint(Sketcher.Constraint("Vertical", 0, 3, 1, 3))
sketch11.addConstraint(Sketcher.Constraint("Diameter", 0, Q("3.2 mm")))
sketch11.addConstraint(Sketcher.Constraint("DistanceY", 1, 3, 0, 3, Q("49 mm")))
sketch11.addConstraint(Sketcher.Constraint("DistanceX", 2, 3, 1, 3, Q("58 mm")))
sketch11.addConstraint(Sketcher.Constraint("DistanceY", 0, 3, -1, 1, Q("8 mm")))
sketch11.addConstraint(Sketcher.Constraint("DistanceX", -1, 1, 0, 3, Q("86.5 mm")))
pocket7 = body.newObject("PartDesign::Pocket", "Pocket006")
pocket7.Profile = sketch11
pocket7.Length = 2.5
pocket7.Reversed = True

# Sketch on YZ plane
sketch12 = body.newObject("Sketcher::SketchObject", "Sketch011")
sketch12.AttachmentSupport = (doc.getObject("YZ_Plane"), [""])
sketch12.MapMode = "FlatFace"
sketch12.AttachmentOffset = App.Placement(V(0, 0, 107.9904), App.Rotation())
sketch12.addGeometry(Part.Circle(V(26, -34, 0), V(0, 0, 1), 8), False)
sketch12.addConstraint(Sketcher.Constraint("Diameter", 0, Q("15.6 mm")))
sketch12.addConstraint(Sketcher.Constraint("DistanceX", -1, 1, 0, 3, Q("25.5 mm")))
sketch12.addConstraint(Sketcher.Constraint("DistanceY", 0, 3, -1, 1, Q("34.1848 mm")))
pocket8 = body.newObject("PartDesign::Pocket", "Pocket007")
pocket8.Profile = sketch12
pocket8.Length = 10
pocket8.Reversed = True

doc.recompute()
